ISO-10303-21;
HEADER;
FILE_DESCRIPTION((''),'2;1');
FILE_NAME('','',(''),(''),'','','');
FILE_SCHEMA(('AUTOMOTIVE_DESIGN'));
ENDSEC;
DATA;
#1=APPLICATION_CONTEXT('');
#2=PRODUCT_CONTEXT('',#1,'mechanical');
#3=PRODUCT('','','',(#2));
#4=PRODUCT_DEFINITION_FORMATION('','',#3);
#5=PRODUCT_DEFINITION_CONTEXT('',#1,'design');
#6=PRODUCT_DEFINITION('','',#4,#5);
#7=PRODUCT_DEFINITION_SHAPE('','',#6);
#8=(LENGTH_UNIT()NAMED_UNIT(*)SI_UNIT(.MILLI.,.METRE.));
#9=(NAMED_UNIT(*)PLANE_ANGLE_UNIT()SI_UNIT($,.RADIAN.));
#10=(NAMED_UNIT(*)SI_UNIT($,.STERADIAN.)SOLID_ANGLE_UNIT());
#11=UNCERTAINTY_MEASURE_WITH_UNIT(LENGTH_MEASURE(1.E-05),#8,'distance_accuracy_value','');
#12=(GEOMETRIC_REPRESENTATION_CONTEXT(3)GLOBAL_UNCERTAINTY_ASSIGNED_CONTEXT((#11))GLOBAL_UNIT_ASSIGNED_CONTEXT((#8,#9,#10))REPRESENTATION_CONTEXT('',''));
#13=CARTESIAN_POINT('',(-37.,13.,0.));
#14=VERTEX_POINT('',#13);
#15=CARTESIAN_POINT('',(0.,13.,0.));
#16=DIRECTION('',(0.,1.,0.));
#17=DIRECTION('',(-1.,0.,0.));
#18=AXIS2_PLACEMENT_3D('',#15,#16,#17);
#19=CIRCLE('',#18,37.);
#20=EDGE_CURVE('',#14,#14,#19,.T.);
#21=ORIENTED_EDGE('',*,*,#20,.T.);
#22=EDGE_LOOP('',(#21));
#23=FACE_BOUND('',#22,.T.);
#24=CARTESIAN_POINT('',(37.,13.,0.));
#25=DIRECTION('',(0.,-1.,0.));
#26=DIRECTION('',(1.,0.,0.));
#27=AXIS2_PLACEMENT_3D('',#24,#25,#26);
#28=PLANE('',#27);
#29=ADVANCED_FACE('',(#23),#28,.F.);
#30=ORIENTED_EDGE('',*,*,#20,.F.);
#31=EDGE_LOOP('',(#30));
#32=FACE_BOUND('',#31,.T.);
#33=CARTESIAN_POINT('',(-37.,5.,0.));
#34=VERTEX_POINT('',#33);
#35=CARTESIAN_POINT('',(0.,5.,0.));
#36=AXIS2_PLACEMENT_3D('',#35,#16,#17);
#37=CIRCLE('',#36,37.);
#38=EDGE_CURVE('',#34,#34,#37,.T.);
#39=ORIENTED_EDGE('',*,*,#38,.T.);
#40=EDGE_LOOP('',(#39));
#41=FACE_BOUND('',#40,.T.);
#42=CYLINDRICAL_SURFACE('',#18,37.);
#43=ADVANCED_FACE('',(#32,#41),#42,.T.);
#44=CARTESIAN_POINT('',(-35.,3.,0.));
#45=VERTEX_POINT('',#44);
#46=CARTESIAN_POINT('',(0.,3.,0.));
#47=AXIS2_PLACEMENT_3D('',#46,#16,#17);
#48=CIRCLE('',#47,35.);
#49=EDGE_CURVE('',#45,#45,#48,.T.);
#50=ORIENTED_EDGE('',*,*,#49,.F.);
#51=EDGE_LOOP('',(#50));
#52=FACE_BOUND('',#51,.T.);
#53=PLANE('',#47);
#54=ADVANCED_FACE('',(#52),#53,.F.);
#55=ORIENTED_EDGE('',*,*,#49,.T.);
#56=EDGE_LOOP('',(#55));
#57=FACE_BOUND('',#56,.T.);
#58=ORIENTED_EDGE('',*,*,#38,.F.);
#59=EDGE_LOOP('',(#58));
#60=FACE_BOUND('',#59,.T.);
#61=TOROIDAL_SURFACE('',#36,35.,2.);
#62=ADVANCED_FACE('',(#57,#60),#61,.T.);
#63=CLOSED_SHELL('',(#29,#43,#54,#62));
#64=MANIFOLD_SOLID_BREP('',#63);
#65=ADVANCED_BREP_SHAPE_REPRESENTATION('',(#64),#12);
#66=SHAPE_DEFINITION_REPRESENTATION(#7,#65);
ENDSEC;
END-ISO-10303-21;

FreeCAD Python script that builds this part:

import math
import FreeCAD as App
import Part
import Sketcher

V = App.Vector

doc = App.newDocument("Part")
body = doc.addObject("PartDesign::Body", "Body")

sketch1 = body.newObject("Sketcher::SketchObject", "Sketch")
sketch1.AttachmentSupport = (doc.getObject("XY_Plane"), [""])
sketch1.MapMode = "FlatFace"
sketch1.addGeometry(Part.LineSegment(V(0, 3, 0), V(35, 3, 0)), False)
sketch1.addGeometry(Part.ArcOfCircle(Part.Circle(V(35, 5, 0), V(0, 0, 1), 2), math.radians(-90), math.radians(0)), False)
sketch1.addGeometry(Part.LineSegment(V(37, 5, 0), V(37, 13, 0)), False)
sketch1.addGeometry(Part.LineSegment(V(37, 13, 0), V(0, 13, 0)), False)
sketch1.addGeometry(Part.LineSegment(V(0, 13, 0), V(0, 3, 0)), False)
sketch1.addConstraint(Sketcher.Constraint("Tangent", 0, 2, 1, 1))
sketch1.addConstraint(Sketcher.Constraint("Tangent", 1, 2, 2, 1))
sketch1.addConstraint(Sketcher.Constraint("Coincident", 2, 2, 3, 1))
sketch1.addConstraint(Sketcher.Constraint("Coincident", 3, 2, 4, 1))
sketch1.addConstraint(Sketcher.Constraint("Coincident", 4, 2, 0, 1))
sketch1.addConstraint(Sketcher.Constraint("Horizontal", 0))
sketch1.addConstraint(Sketcher.Constraint("Vertical", 2))
sketch1.addConstraint(Sketcher.Constraint("Horizontal", 3))
sketch1.addConstraint(Sketcher.Constraint("Vertical", 4))
sketch1.addConstraint(Sketcher.Constraint("PointOnObject", 3, 2, -2))
sketch1.addConstraint(Sketcher.Constraint("Radius", 1, 2.0))
sketch1.addConstraint(Sketcher.Constraint("DistanceX", 0, 1, 0, 2, 35.0))
sketch1.addConstraint(Sketcher.Constraint("DistanceY", 2, 1, 2, 2, 8.0))
sketch1.addConstraint(Sketcher.Constraint("DistanceY", -1, 1, 1, 3, 5.0))
revolution = body.newObject("PartDesign::Revolution", "Revolution")
revolution.Profile = sketch1
revolution.ReferenceAxis = (sketch1, ["V_Axis"])
revolution.Angle = 360

doc.recompute()
